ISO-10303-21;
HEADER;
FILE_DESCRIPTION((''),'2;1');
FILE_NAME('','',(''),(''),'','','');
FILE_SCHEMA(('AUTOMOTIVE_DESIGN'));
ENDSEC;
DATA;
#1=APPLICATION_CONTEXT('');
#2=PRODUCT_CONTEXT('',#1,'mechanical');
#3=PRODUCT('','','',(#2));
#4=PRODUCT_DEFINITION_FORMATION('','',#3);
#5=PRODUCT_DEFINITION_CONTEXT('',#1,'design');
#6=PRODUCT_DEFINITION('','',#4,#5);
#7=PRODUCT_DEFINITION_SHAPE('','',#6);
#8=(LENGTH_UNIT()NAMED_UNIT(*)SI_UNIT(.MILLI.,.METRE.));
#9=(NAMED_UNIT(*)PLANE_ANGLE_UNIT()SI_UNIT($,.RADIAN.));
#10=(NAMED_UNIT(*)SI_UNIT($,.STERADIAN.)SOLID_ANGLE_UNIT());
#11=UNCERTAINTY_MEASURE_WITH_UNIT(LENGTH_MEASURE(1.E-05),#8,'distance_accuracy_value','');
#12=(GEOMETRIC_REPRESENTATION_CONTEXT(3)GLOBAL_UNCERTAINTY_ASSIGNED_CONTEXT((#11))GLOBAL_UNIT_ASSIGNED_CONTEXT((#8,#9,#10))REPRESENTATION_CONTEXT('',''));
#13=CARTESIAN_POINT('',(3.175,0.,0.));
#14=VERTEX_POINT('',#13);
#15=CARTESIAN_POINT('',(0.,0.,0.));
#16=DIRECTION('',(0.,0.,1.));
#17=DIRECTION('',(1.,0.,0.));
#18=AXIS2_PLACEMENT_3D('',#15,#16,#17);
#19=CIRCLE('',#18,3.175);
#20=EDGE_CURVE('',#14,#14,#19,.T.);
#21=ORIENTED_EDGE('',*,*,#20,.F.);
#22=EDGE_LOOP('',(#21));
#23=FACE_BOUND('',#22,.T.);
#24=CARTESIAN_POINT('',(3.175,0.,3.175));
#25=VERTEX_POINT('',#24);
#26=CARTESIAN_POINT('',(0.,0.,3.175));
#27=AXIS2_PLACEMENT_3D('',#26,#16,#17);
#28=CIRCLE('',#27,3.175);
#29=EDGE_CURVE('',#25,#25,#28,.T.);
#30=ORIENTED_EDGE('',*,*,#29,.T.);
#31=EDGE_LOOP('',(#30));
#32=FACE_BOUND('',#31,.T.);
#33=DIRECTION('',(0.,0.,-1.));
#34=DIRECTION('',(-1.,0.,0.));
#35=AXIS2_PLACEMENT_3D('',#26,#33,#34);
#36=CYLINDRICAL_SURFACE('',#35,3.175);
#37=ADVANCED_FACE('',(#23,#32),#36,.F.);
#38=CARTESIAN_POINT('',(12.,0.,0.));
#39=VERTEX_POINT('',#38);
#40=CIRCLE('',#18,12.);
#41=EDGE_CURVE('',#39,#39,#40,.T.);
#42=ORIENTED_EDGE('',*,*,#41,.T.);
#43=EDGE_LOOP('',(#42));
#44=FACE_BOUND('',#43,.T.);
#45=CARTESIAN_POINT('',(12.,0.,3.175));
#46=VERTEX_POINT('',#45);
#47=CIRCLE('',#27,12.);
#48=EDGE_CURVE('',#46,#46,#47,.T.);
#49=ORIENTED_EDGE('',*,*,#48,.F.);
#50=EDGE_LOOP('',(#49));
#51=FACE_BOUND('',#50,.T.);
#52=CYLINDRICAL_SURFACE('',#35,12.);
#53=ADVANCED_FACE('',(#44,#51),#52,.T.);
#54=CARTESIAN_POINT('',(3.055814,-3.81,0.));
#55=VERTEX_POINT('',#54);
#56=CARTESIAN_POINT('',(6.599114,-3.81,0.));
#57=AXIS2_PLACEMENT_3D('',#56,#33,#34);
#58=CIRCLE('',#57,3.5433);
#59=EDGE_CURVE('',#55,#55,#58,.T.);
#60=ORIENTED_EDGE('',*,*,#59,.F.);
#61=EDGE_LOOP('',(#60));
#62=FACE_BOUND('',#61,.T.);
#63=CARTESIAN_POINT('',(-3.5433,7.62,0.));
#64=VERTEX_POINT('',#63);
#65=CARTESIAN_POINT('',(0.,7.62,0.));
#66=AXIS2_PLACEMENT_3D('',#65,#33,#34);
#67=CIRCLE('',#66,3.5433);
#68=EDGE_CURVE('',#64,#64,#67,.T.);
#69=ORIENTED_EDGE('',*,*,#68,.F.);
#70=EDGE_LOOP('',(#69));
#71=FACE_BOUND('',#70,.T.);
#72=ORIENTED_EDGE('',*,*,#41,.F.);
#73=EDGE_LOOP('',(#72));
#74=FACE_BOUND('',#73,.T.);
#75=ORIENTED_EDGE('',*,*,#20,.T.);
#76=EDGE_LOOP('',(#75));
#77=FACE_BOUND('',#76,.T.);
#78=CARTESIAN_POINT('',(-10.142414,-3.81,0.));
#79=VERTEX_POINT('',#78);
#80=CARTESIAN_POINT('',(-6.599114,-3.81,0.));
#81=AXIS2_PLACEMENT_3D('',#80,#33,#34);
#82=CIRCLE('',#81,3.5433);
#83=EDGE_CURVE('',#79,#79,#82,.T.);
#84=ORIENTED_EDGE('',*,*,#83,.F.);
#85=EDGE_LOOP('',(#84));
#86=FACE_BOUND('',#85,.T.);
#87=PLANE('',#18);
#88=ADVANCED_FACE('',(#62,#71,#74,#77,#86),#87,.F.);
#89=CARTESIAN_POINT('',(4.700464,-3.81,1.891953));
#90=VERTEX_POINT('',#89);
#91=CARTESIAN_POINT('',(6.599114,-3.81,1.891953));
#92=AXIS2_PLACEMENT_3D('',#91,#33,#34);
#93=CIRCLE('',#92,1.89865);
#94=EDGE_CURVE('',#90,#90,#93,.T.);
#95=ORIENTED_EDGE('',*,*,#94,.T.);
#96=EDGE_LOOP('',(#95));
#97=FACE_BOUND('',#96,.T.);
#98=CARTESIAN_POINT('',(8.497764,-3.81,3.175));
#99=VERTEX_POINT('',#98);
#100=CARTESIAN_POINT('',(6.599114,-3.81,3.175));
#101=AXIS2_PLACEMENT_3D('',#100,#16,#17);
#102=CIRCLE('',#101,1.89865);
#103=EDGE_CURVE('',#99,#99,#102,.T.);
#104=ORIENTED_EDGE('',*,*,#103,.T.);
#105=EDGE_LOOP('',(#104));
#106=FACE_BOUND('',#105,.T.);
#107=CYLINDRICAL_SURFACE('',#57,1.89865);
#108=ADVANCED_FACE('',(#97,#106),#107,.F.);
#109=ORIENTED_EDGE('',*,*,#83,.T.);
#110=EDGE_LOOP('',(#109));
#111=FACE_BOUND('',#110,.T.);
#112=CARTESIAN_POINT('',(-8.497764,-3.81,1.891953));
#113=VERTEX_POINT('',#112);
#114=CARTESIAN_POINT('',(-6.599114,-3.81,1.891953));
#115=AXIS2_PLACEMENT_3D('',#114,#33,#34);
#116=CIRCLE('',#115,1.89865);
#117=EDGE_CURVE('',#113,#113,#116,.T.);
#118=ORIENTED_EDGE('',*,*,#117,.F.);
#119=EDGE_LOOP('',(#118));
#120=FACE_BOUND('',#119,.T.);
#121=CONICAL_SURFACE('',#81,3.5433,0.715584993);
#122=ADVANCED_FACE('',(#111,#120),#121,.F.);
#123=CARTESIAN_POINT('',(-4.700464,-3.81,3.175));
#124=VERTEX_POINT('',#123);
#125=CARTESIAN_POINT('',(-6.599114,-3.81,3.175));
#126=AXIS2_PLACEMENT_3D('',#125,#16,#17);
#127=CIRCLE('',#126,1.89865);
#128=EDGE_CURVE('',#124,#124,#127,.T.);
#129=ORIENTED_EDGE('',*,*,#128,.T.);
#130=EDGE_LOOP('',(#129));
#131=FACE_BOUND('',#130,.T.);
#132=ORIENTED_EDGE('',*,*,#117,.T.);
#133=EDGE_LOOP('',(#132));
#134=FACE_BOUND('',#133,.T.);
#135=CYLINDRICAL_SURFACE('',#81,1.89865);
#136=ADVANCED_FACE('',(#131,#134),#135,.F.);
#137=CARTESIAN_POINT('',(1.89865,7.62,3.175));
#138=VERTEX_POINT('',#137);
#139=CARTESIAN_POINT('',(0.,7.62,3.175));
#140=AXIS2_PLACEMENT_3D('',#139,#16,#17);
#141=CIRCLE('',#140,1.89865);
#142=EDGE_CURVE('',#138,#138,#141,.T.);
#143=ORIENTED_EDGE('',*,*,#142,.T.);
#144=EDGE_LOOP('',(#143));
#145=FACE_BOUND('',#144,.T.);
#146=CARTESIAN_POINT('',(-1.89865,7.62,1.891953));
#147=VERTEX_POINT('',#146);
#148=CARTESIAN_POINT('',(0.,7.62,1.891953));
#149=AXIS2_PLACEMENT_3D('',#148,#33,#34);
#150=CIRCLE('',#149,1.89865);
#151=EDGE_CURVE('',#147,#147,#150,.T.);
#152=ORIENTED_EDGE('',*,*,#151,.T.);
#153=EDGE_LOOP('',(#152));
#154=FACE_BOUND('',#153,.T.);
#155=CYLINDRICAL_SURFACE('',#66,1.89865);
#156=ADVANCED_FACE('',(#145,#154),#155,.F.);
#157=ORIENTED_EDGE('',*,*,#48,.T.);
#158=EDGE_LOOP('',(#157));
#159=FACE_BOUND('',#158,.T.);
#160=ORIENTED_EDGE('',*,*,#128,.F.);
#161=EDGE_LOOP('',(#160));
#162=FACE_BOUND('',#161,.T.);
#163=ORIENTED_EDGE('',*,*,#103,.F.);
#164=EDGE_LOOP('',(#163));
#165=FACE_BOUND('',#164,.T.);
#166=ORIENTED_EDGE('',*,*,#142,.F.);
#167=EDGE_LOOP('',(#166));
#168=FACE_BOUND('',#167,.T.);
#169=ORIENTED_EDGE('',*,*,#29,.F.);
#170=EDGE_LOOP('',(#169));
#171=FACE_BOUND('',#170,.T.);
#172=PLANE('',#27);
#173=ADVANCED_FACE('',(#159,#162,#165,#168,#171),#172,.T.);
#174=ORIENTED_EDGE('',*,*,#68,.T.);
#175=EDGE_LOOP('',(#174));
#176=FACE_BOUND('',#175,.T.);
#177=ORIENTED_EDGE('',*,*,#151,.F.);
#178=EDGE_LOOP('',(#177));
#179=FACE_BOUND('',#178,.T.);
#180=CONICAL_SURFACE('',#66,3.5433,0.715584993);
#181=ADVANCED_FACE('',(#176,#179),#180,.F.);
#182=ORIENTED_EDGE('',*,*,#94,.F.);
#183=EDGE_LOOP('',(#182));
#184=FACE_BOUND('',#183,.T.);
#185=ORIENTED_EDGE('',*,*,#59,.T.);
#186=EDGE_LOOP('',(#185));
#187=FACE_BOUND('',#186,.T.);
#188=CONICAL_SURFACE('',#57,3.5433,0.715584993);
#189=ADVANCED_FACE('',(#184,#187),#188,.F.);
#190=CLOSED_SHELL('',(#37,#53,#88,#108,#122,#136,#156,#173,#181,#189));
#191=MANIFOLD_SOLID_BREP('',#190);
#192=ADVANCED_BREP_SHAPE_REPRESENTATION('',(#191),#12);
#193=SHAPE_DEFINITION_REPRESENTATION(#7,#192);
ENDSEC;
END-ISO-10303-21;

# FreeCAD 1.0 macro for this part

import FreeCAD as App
import Part
import Sketcher
Q = App.Units.Quantity

doc = App.newDocument("Part")
body = doc.addObject("PartDesign::Body", "Body")

sketch1 = body.newObject("Sketcher::SketchObject", "Sketch")
sketch1.AttachmentSupport = (doc.getObject("XY_Plane"), [""])
sketch1.MapMode = "FlatFace"
sketch1.addGeometry([
    Part.Circle(App.Vector(0, 0, 0), App.Vector(0, 0, 1), 12),
    Part.Circle(App.Vector(0, 0, 0), App.Vector(0, 0, 1), 3.2),
], False)
sketch1.addConstraint([
    Sketcher.Constraint("Coincident", 0, 3, -1, 1),
    Sketcher.Constraint("Coincident", 1, 3, -1, 1),
    Sketcher.Constraint("Diameter", 1, Q("0.25 in")),
    Sketcher.Constraint("Diameter", 0, Q("24 mm")),
])
pad1 = body.newObject("PartDesign::Pad", "Pad")
pad1.Profile = sketch1
pad1.Length = Q("0.125 in")

sketch2 = body.newObject("Sketcher::SketchObject", "Sketch001")
sketch2.AttachmentSupport = (doc.getObject("XY_Plane"), [""])
sketch2.MapMode = "FlatFace"
sketch2.addGeometry([
    Part.Circle(App.Vector(0, 7.6, 0), App.Vector(0, 0, 1), 1.9),
    Part.Circle(App.Vector(6.6, -3.8, 0), App.Vector(0, 0, 1), 1.9),
    Part.Circle(App.Vector(-6.6, -3.8, 0), App.Vector(0, 0, 1), 1.9),
], False)
sketch2.addConstraint([
    Sketcher.Constraint("Equal", 0, 1),
    Sketcher.Constraint("Equal", 1, 2),
    Sketcher.Constraint("Symmetric", 1, 3, 2, 3, -2),
    Sketcher.Constraint("PointOnObject", 0, 3, -2),
    Sketcher.Constraint("Diameter", 0, Q("0.1495 in")),
    Sketcher.Constraint("DistanceY", -1, 1, 0, 3, Q("0.3 in")),
    Sketcher.Constraint("DistanceY", 1, 3, -1, 1, Q("0.15 in")),
    Sketcher.Constraint("DistanceX", -1, 1, 1, 3, Q("6.599114 mm")),
])
doc.recompute()
hole = body.newObject("PartDesign::Hole", "Hole")
hole.Profile = sketch2
hole.ThreadType = "None"
hole.Diameter = Q("0.1495 in")
hole.DepthType = "Dimension"
hole.Depth = 10.973
hole.DrillPoint = "Angled"
hole.DrillPointAngle = 118
hole.HoleCutType = "Countersink"
hole.HoleCutDiameter = Q("0.279 in")
hole.HoleCutCountersinkAngle = 82
hole.Reversed = True

doc.recompute()
